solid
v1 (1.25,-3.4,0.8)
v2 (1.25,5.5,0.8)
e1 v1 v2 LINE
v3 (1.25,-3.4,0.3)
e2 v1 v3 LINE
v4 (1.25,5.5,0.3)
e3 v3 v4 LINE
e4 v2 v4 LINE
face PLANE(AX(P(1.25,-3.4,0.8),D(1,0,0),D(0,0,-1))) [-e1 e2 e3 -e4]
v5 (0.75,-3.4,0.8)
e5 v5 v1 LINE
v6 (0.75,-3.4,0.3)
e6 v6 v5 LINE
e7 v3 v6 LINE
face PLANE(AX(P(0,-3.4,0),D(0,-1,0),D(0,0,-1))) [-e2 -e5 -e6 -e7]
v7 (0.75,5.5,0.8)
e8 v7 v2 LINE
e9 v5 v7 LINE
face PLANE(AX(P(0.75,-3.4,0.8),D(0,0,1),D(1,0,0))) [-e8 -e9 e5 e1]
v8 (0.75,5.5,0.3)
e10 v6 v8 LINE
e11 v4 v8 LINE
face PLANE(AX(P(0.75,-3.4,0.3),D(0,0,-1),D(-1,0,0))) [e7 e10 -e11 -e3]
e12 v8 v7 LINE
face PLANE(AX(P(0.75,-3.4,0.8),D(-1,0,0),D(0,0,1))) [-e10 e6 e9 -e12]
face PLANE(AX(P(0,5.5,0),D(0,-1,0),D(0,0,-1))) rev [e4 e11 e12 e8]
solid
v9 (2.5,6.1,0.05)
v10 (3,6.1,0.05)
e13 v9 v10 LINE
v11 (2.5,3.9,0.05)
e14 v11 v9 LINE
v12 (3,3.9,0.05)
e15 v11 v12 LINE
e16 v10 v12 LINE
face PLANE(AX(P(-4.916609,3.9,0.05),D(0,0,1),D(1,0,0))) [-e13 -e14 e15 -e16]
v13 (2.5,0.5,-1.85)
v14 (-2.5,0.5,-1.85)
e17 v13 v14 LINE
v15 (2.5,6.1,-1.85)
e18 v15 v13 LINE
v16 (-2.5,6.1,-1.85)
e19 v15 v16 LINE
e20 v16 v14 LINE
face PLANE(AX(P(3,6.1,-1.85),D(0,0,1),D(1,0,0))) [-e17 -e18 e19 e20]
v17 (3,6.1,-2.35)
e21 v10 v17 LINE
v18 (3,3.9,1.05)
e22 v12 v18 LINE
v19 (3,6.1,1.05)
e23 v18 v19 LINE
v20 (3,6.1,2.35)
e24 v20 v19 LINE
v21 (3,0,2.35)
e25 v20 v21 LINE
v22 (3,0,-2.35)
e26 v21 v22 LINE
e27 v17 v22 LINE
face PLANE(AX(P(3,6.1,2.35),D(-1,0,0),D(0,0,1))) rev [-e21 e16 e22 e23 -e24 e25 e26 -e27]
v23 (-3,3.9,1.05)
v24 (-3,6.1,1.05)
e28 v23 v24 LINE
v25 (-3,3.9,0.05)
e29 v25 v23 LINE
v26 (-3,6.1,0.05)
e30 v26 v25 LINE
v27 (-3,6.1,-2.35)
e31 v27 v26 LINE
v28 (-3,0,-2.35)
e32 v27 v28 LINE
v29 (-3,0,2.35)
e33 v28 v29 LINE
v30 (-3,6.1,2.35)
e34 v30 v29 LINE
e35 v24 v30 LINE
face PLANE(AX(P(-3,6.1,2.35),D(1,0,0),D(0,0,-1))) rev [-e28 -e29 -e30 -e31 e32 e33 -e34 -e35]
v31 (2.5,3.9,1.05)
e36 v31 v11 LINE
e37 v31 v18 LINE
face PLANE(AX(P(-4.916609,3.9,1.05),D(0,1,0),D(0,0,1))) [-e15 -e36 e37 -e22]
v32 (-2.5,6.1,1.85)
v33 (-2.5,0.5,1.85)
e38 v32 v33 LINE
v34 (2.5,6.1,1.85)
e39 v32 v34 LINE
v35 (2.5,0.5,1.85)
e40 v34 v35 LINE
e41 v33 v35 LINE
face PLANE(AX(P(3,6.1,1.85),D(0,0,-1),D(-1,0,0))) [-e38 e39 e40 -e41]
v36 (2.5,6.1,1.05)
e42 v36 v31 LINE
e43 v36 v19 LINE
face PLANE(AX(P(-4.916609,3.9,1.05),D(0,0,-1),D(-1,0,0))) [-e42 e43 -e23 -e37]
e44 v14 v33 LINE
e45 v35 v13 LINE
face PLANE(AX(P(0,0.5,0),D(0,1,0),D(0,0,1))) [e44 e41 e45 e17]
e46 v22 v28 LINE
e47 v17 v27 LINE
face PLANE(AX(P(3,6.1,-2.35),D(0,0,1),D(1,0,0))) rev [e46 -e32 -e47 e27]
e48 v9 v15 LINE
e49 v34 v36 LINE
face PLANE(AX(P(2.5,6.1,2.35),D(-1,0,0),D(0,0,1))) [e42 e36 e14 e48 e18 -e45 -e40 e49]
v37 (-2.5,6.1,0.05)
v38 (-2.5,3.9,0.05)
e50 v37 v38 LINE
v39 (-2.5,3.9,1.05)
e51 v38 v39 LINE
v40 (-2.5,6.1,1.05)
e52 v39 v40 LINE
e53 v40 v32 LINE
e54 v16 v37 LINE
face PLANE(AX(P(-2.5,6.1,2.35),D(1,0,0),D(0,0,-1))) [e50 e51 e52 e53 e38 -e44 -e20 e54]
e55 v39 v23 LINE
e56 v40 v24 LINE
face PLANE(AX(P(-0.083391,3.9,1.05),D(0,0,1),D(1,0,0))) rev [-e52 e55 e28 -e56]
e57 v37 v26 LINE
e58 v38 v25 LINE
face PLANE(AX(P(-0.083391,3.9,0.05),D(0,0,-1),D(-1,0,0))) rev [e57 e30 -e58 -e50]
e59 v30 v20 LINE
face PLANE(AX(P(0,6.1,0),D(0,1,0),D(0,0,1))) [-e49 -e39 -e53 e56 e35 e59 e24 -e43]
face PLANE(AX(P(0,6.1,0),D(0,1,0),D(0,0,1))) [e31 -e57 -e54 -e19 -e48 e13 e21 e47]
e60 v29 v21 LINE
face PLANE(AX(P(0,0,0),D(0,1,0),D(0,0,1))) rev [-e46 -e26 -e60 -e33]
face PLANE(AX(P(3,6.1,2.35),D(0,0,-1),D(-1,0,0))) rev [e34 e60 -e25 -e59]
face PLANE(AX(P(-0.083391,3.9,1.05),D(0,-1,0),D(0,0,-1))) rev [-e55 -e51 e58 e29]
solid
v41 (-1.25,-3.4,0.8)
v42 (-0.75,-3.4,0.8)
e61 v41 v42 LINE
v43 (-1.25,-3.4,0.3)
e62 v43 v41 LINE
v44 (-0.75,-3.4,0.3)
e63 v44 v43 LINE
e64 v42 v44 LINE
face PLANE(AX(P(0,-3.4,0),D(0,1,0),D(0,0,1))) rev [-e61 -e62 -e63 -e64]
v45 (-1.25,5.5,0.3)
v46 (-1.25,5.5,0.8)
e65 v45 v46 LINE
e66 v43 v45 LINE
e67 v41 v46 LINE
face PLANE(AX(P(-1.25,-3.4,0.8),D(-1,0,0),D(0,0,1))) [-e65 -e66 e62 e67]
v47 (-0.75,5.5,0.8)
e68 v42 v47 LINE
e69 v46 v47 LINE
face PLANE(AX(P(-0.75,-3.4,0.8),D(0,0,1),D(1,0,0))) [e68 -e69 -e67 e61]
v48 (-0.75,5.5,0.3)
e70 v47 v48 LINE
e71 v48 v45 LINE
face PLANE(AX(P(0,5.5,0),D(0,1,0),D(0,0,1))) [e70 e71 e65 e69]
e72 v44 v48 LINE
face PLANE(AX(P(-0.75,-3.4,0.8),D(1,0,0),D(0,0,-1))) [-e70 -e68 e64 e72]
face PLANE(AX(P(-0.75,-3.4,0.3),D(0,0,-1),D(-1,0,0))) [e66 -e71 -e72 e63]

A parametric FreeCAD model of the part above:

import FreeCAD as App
import Part
import Sketcher

V = App.Vector
Q = App.Units.Quantity


def faces_at(feature, points):
    """Names of the faces that lie closest to the given points."""
    faces = feature.Shape.Faces
    near = lambda p: min(range(len(faces)), key=lambda i: faces[i].distToShape(Part.Vertex(*p))[0])
    return sorted({f"Face{near(p) + 1}" for p in points})

doc = App.newDocument("Part")
params = doc.addObject("Spreadsheet::Sheet", "Params")
for row, (alias, value) in enumerate([
    ("sketch1_width", "6 mm"),
    ("sketch1_height", "4.7 mm"),
    ("pad1_length", "6.1 mm"),
    ("thickness_wall", "0.5 mm"),
    ("sketch2_height", "1 mm"),
    ("sketch2_width", "2.2 mm"),
    ("pocket1_length", "5.5 mm"),
    ("sketch3_width", "0.5 mm"),
    ("pad2_length", "5 mm"),
    ("pad2_length2", "3.9 mm"),
    ("sketch4_width", "0.5 mm"),
    ("pad3_length", "5 mm"),
    ("pad3_length2", "3.9 mm"),
], start=1):
    params.set(f"A{row}", alias)
    params.set(f"B{row}", "=" + value)
    params.setAlias(f"B{row}", alias)

body = doc.addObject("PartDesign::Body", "Body")

# Sketch on XZ plane
sketch1 = doc.addObject("Sketcher::SketchObject", "Sketch")
body.addObject(sketch1)
sketch1.AttachmentSupport = (doc.XZ_Plane, [""])
sketch1.MapMode = "FlatFace"
sketch1.addGeometry(Part.LineSegment(V(-3, -2.35, 0), V(-3, 2.35, 0)), False)
sketch1.addGeometry(Part.LineSegment(V(-3, 2.35, 0), V(3, 2.35, 0)), False)
sketch1.addGeometry(Part.LineSegment(V(3, 2.35, 0), V(3, -2.35, 0)), False)
sketch1.addGeometry(Part.LineSegment(V(3, -2.35, 0), V(-3, -2.35, 0)), False)
sketch1.addConstraint(Sketcher.Constraint("Coincident", 0, 2, 1, 1))
sketch1.addConstraint(Sketcher.Constraint("Coincident", 1, 2, 2, 1))
sketch1.addConstraint(Sketcher.Constraint("Coincident", 2, 2, 3, 1))
sketch1.addConstraint(Sketcher.Constraint("Coincident", 3, 2, 0, 1))
sketch1.addConstraint(Sketcher.Constraint("Vertical", 0))
sketch1.addConstraint(Sketcher.Constraint("Horizontal", 1))
sketch1.addConstraint(Sketcher.Constraint("Vertical", 2))
sketch1.addConstraint(Sketcher.Constraint("Horizontal", 3))
sketch1.addConstraint(Sketcher.Constraint("Symmetric", 0, 2, 2, 2, -1, 1))
sketch1.addConstraint(Sketcher.Constraint("DistanceX", 1, 1, 1, 2, Q("6 mm")))
sketch1.addConstraint(Sketcher.Constraint("DistanceY", 0, 1, 0, 2, Q("4.7 mm")))
sketch1.setExpression("Constraints[9]", "Params.sketch1_width")
sketch1.setExpression("Constraints[10]", "Params.sketch1_height")
pad1 = doc.addObject("PartDesign::Pad", "Pad")
body.addObject(pad1)
pad1.Profile = sketch1
pad1.setExpression("Length", "Params.pad1_length")
pad1.Reversed = True
doc.recompute()

thickness = doc.addObject("PartDesign::Thickness", "Thickness")
body.addObject(thickness)
thickness.Base = (pad1, faces_at(pad1, [(0, 6.1, 0)]))
thickness.setExpression("Value", "Params.thickness_wall")
thickness.Reversed = True
thickness.Join = "Intersection"

# Sketch on YZ plane
sketch2 = doc.addObject("Sketcher::SketchObject", "Sketch001")
body.addObject(sketch2)
sketch2.AttachmentSupport = (doc.YZ_Plane, [""])
sketch2.MapMode = "FlatFace"
sketch2.AttachmentOffset = App.Placement(V(0, 0, -3), App.Rotation())
sketch2.addGeometry(Part.LineSegment(V(6.1, 0.05, 0), V(3.9, 0.05, 0)), False)
sketch2.addGeometry(Part.LineSegment(V(3.9, 0.05, 0), V(3.9, 1.05, 0)), False)
sketch2.addGeometry(Part.LineSegment(V(3.9, 1.05, 0), V(6.1, 1.05, 0)), False)
sketch2.addGeometry(Part.LineSegment(V(6.1, 1.05, 0), V(6.1, 0.05, 0)), False)
sketch2.addConstraint(Sketcher.Constraint("Coincident", 0, 2, 1, 1))
sketch2.addConstraint(Sketcher.Constraint("Coincident", 1, 2, 2, 1))
sketch2.addConstraint(Sketcher.Constraint("Coincident", 2, 2, 3, 1))
sketch2.addConstraint(Sketcher.Constraint("Coincident", 3, 2, 0, 1))
sketch2.addConstraint(Sketcher.Constraint("Horizontal", 0))
sketch2.addConstraint(Sketcher.Constraint("Vertical", 1))
sketch2.addConstraint(Sketcher.Constraint("Horizontal", 2))
sketch2.addConstraint(Sketcher.Constraint("Vertical", 3))
sketch2.addConstraint(Sketcher.Constraint("DistanceY", 1, 1, 1, 2, Q("1 mm")))
sketch2.addConstraint(Sketcher.Constraint("DistanceX", 0, 2, 0, 1, Q("2.2 mm")))
sketch2.addConstraint(Sketcher.Constraint("DistanceX", -1, 1, 0, 2, Q("3.9 mm")))
sketch2.addConstraint(Sketcher.Constraint("DistanceY", -1, 1, 0, 2, Q("0.05 mm")))
sketch2.setExpression("Constraints[8]", "Params.sketch2_height")
sketch2.setExpression("Constraints[9]", "Params.sketch2_width")
pocket1 = doc.addObject("PartDesign::Pocket", "Pocket")
body.addObject(pocket1)
pocket1.Profile = sketch2
pocket1.setExpression("Length", "Params.pocket1_length")
pocket1.Reversed = True
doc.recompute()

mirrored = doc.addObject("PartDesign::Mirrored", "Mirrored")
body.addObject(mirrored)
mirrored.Originals = [pocket1]
mirrored.MirrorPlane = (doc.YZ_Plane, [""])
body.Tip = mirrored
body2 = doc.addObject("PartDesign::Body", "Body001")

# Sketch on XZ plane
sketch3 = doc.addObject("Sketcher::SketchObject", "Sketch002")
body2.addObject(sketch3)
sketch3.AttachmentSupport = (doc.getObject("XZ_Plane001"), [""])
sketch3.MapMode = "FlatFace"
sketch3.AttachmentOffset = App.Placement(V(0, 0, -0.5), App.Rotation())
sketch3.addGeometry(Part.LineSegment(V(-1.25, 0.3, 0), V(-1.25, 0.8, 0)), False)
sketch3.addGeometry(Part.LineSegment(V(-1.25, 0.8, 0), V(-0.75, 0.8, 0)), False)
sketch3.addGeometry(Part.LineSegment(V(-0.75, 0.8, 0), V(-0.75, 0.3, 0)), False)
sketch3.addGeometry(Part.LineSegment(V(-0.75, 0.3, 0), V(-1.25, 0.3, 0)), False)
sketch3.addConstraint(Sketcher.Constraint("Coincident", 0, 2, 1, 1))
sketch3.addConstraint(Sketcher.Constraint("Coincident", 1, 2, 2, 1))
sketch3.addConstraint(Sketcher.Constraint("Coincident", 2, 2, 3, 1))
sketch3.addConstraint(Sketcher.Constraint("Coincident", 3, 2, 0, 1))
sketch3.addConstraint(Sketcher.Constraint("Vertical", 0))
sketch3.addConstraint(Sketcher.Constraint("Horizontal", 1))
sketch3.addConstraint(Sketcher.Constraint("Vertical", 2))
sketch3.addConstraint(Sketcher.Constraint("Horizontal", 3))
sketch3.addConstraint(Sketcher.Constraint("Equal", 3, 0))
sketch3.addConstraint(Sketcher.Constraint("DistanceX", 1, 1, 1, 2, Q("0.5 mm")))
sketch3.addConstraint(Sketcher.Constraint("DistanceY", -1, 1, 0, 2, Q("0.8 mm")))
sketch3.addConstraint(Sketcher.Constraint("DistanceX", 0, 2, -1, 1, Q("1.25 mm")))
sketch3.setExpression("Constraints[9]", "Params.sketch3_width")
pad2 = doc.addObject("PartDesign::Pad", "Pad001")
body2.addObject(pad2)
pad2.Profile = sketch3
pad2.Type = "TwoLengths"
pad2.setExpression("Length", "Params.pad2_length")
pad2.setExpression("Length2", "Params.pad2_length2")
pad2.Reversed = True
body3 = doc.addObject("PartDesign::Body", "Body002")

# Sketch on XZ plane
sketch4 = doc.addObject("Sketcher::SketchObject", "Sketch003")
body3.addObject(sketch4)
sketch4.AttachmentSupport = (doc.getObject("XZ_Plane002"), [""])
sketch4.MapMode = "FlatFace"
sketch4.AttachmentOffset = App.Placement(V(0, 0, -0.5), App.Rotation())
sketch4.addGeometry(Part.LineSegment(V(0.75, 0.3, 0), V(0.75, 0.8, 0)), False)
sketch4.addGeometry(Part.LineSegment(V(0.75, 0.8, 0), V(1.25, 0.8, 0)), False)
sketch4.addGeometry(Part.LineSegment(V(1.25, 0.8, 0), V(1.25, 0.3, 0)), False)
sketch4.addGeometry(Part.LineSegment(V(1.25, 0.3, 0), V(0.75, 0.3, 0)), False)
sketch4.addConstraint(Sketcher.Constraint("Coincident", 0, 2, 1, 1))
sketch4.addConstraint(Sketcher.Constraint("Coincident", 1, 2, 2, 1))
sketch4.addConstraint(Sketcher.Constraint("Coincident", 2, 2, 3, 1))
sketch4.addConstraint(Sketcher.Constraint("Coincident", 3, 2, 0, 1))
sketch4.addConstraint(Sketcher.Constraint("Vertical", 0))
sketch4.addConstraint(Sketcher.Constraint("Horizontal", 1))
sketch4.addConstraint(Sketcher.Constraint("Vertical", 2))
sketch4.addConstraint(Sketcher.Constraint("Horizontal", 3))
sketch4.addConstraint(Sketcher.Constraint("Equal", 3, 0))
sketch4.addConstraint(Sketcher.Constraint("DistanceX", 1, 1, 1, 2, Q("0.5 mm")))
sketch4.addConstraint(Sketcher.Constraint("DistanceY", -1, 1, 0, 2, Q("0.8 mm")))
sketch4.addConstraint(Sketcher.Constraint("DistanceX", -1, 1, 0, 2, Q("0.75 mm")))
sketch4.setExpression("Constraints[9]", "Params.sketch4_width")
pad3 = doc.addObject("PartDesign::Pad", "Pad002")
body3.addObject(pad3)
pad3.Profile = sketch4
pad3.Type = "TwoLengths"
pad3.setExpression("Length", "Params.pad3_length")
pad3.setExpression("Length2", "Params.pad3_length2")
pad3.Reversed = True

doc.recompute()
